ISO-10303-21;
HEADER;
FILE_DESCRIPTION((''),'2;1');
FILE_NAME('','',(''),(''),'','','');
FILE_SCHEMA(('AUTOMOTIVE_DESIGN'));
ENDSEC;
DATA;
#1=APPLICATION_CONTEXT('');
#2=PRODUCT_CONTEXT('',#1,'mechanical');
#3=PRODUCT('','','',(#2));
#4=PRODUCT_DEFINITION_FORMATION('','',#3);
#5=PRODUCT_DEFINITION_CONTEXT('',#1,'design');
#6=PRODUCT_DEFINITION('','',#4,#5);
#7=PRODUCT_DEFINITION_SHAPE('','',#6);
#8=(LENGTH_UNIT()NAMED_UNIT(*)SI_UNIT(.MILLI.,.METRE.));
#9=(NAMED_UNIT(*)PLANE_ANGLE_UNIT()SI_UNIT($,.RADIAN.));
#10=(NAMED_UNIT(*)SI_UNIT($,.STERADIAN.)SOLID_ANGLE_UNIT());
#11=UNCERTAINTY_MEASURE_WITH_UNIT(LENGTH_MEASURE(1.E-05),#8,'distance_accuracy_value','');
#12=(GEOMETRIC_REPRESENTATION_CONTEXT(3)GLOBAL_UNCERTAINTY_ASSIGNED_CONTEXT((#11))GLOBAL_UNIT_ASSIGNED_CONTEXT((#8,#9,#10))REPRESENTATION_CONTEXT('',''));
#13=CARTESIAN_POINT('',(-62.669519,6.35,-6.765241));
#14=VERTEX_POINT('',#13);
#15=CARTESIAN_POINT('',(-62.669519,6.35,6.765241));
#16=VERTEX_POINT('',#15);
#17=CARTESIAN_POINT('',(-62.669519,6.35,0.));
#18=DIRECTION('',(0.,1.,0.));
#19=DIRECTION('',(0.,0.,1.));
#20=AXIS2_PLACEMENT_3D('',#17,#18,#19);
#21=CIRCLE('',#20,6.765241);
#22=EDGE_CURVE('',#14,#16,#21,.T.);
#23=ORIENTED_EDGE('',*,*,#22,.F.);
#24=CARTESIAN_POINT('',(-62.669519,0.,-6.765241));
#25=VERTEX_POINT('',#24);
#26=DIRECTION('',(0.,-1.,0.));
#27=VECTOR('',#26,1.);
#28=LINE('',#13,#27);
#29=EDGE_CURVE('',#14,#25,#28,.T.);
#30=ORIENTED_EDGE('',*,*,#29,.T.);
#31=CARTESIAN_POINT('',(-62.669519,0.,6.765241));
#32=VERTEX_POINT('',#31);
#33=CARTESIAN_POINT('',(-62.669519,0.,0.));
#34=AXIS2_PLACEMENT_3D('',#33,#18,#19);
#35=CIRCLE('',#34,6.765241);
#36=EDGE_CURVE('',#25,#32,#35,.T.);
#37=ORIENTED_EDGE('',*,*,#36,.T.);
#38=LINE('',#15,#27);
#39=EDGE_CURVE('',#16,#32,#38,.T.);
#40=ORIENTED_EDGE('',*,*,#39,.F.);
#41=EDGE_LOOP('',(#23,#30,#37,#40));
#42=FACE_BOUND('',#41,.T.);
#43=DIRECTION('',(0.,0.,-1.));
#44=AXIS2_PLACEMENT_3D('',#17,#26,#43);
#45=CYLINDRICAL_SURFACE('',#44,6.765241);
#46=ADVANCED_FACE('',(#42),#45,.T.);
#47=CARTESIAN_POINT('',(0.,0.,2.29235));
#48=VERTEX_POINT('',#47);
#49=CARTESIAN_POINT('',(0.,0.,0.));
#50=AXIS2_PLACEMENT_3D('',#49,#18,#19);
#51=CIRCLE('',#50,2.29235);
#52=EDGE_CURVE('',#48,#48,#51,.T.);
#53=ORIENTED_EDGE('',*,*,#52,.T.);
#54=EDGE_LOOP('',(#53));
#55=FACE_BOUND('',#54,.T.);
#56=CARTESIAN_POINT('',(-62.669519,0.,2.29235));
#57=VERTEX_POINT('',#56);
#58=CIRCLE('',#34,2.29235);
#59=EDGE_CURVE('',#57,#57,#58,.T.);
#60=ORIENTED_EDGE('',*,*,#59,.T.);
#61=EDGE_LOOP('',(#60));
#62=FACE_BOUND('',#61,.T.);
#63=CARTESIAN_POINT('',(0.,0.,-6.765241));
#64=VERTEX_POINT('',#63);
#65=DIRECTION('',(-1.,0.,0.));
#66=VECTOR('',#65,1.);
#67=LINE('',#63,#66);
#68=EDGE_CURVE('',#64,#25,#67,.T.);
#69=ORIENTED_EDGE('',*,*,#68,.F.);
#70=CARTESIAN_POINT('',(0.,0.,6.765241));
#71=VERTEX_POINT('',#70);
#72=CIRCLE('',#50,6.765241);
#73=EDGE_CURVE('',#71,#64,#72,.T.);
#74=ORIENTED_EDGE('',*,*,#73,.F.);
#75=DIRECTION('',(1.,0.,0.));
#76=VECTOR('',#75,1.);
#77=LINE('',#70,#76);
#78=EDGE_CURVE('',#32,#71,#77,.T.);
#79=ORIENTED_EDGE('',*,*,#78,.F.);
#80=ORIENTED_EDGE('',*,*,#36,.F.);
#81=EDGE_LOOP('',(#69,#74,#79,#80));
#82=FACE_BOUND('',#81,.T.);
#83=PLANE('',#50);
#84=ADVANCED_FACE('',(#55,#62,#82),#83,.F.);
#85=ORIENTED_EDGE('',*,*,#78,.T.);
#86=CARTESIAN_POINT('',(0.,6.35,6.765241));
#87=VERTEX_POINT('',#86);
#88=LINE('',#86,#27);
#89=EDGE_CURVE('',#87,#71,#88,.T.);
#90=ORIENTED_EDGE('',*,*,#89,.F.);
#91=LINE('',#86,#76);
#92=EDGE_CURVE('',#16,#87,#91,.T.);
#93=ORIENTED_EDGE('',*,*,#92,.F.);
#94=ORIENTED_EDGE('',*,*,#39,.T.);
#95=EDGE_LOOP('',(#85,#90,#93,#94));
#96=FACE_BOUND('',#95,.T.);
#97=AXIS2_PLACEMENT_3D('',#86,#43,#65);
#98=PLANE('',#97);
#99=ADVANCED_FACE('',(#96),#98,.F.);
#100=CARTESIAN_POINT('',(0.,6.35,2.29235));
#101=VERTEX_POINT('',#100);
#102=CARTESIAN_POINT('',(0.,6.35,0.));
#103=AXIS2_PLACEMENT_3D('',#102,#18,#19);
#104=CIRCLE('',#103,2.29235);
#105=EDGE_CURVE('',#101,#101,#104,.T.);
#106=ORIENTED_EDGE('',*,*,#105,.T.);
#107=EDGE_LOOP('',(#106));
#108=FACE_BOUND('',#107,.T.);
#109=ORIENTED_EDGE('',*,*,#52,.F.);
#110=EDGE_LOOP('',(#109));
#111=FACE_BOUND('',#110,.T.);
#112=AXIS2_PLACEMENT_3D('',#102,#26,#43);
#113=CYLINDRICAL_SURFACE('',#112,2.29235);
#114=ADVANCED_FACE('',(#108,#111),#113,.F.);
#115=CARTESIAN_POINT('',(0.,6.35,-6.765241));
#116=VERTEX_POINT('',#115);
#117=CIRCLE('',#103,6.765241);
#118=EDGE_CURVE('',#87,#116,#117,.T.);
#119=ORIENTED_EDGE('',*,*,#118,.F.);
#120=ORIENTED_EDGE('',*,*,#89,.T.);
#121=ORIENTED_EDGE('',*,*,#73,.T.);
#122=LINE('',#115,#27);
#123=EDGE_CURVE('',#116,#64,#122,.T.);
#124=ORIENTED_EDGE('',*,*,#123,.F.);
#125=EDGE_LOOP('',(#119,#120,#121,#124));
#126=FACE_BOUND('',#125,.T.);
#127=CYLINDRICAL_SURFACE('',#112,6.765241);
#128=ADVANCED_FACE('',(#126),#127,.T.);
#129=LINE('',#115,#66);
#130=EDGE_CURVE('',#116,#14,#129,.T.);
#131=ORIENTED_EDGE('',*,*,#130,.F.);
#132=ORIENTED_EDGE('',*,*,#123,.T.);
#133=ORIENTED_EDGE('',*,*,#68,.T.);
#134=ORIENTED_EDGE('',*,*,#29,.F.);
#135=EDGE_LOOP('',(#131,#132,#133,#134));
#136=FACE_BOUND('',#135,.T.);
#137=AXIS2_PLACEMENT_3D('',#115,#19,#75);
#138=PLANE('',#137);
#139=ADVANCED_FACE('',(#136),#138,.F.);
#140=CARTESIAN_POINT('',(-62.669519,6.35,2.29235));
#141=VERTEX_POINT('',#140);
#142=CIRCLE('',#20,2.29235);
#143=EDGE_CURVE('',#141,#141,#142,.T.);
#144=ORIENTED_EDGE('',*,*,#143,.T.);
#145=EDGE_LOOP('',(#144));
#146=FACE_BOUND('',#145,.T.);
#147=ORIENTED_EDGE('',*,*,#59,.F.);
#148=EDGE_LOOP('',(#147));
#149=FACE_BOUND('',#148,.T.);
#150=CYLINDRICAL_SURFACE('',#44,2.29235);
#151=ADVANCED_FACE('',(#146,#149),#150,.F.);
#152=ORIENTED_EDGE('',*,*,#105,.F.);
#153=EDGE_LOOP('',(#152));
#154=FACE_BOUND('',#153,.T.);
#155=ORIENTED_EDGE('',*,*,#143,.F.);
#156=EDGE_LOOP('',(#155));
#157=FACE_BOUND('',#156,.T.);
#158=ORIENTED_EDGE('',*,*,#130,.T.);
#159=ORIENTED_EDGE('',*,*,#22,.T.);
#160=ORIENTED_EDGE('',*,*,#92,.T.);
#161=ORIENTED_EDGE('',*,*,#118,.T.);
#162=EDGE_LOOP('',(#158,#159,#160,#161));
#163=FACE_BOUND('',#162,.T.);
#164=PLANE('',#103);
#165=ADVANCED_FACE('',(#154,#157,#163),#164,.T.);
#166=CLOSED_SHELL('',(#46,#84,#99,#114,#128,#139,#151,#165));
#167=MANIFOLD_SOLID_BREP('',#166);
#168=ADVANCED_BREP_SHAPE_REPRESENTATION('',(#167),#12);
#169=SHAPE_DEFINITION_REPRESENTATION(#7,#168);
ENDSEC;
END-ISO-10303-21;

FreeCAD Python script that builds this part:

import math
import FreeCAD as App
import Part
import Sketcher
Q = App.Units.Quantity

doc = App.newDocument("Part")
body = doc.addObject("PartDesign::Body", "Body")

sketch1 = body.newObject("Sketcher::SketchObject", "Sketch")
sketch1.AttachmentSupport = (doc.getObject("XZ_Plane"), [""])
sketch1.MapMode = "FlatFace"
sketch1.addGeometry([
    Part.LineSegment(App.Vector(-62.7, 6.8, 0), App.Vector(0, 6.8, 0)),
    Part.ArcOfCircle(Part.Circle(App.Vector(0, 0, 0), App.Vector(0, 0, 1), 6.8), math.radians(-90), math.radians(90)),
    Part.LineSegment(App.Vector(0, -6.8, 0), App.Vector(-62.7, -6.8, 0)),
    Part.ArcOfCircle(Part.Circle(App.Vector(-62.7, 0, 0), App.Vector(0, 0, 1), 6.8), math.radians(90), math.radians(270)),
    Part.Circle(App.Vector(0, 0, 0), App.Vector(0, 0, 1), 2.3),
    Part.Circle(App.Vector(-62.7, 0, 0), App.Vector(0, 0, 1), 2.3),
], False)
sketch1.addConstraint([
    Sketcher.Constraint("Tangent", 0, 2, 1, 2),
    Sketcher.Constraint("Tangent", 1, 1, 2, 1),
    Sketcher.Constraint("Tangent", 2, 2, 3, 2),
    Sketcher.Constraint("Tangent", 3, 1, 0, 1),
    Sketcher.Constraint("Horizontal", 0),
    Sketcher.Constraint("Horizontal", 2),
    Sketcher.Constraint("Coincident", 1, 3, -1, 1),
    Sketcher.Constraint("Coincident", 4, 3, -1, 1),
    Sketcher.Constraint("Coincident", 5, 3, 3, 3),
    Sketcher.Constraint("Equal", 4, 5),
    Sketcher.Constraint("Diameter", 4, Q("0.1805 in")),
    Sketcher.Constraint("Radius", 1, 6.765241),
    Sketcher.Constraint("DistanceX", 0, 1, 0, 2, 62.669519),
])
pad1 = body.newObject("PartDesign::Pad", "Pad")
pad1.Profile = sketch1
pad1.Length = Q("0.25 in")
pad1.Reversed = True

doc.recompute()
